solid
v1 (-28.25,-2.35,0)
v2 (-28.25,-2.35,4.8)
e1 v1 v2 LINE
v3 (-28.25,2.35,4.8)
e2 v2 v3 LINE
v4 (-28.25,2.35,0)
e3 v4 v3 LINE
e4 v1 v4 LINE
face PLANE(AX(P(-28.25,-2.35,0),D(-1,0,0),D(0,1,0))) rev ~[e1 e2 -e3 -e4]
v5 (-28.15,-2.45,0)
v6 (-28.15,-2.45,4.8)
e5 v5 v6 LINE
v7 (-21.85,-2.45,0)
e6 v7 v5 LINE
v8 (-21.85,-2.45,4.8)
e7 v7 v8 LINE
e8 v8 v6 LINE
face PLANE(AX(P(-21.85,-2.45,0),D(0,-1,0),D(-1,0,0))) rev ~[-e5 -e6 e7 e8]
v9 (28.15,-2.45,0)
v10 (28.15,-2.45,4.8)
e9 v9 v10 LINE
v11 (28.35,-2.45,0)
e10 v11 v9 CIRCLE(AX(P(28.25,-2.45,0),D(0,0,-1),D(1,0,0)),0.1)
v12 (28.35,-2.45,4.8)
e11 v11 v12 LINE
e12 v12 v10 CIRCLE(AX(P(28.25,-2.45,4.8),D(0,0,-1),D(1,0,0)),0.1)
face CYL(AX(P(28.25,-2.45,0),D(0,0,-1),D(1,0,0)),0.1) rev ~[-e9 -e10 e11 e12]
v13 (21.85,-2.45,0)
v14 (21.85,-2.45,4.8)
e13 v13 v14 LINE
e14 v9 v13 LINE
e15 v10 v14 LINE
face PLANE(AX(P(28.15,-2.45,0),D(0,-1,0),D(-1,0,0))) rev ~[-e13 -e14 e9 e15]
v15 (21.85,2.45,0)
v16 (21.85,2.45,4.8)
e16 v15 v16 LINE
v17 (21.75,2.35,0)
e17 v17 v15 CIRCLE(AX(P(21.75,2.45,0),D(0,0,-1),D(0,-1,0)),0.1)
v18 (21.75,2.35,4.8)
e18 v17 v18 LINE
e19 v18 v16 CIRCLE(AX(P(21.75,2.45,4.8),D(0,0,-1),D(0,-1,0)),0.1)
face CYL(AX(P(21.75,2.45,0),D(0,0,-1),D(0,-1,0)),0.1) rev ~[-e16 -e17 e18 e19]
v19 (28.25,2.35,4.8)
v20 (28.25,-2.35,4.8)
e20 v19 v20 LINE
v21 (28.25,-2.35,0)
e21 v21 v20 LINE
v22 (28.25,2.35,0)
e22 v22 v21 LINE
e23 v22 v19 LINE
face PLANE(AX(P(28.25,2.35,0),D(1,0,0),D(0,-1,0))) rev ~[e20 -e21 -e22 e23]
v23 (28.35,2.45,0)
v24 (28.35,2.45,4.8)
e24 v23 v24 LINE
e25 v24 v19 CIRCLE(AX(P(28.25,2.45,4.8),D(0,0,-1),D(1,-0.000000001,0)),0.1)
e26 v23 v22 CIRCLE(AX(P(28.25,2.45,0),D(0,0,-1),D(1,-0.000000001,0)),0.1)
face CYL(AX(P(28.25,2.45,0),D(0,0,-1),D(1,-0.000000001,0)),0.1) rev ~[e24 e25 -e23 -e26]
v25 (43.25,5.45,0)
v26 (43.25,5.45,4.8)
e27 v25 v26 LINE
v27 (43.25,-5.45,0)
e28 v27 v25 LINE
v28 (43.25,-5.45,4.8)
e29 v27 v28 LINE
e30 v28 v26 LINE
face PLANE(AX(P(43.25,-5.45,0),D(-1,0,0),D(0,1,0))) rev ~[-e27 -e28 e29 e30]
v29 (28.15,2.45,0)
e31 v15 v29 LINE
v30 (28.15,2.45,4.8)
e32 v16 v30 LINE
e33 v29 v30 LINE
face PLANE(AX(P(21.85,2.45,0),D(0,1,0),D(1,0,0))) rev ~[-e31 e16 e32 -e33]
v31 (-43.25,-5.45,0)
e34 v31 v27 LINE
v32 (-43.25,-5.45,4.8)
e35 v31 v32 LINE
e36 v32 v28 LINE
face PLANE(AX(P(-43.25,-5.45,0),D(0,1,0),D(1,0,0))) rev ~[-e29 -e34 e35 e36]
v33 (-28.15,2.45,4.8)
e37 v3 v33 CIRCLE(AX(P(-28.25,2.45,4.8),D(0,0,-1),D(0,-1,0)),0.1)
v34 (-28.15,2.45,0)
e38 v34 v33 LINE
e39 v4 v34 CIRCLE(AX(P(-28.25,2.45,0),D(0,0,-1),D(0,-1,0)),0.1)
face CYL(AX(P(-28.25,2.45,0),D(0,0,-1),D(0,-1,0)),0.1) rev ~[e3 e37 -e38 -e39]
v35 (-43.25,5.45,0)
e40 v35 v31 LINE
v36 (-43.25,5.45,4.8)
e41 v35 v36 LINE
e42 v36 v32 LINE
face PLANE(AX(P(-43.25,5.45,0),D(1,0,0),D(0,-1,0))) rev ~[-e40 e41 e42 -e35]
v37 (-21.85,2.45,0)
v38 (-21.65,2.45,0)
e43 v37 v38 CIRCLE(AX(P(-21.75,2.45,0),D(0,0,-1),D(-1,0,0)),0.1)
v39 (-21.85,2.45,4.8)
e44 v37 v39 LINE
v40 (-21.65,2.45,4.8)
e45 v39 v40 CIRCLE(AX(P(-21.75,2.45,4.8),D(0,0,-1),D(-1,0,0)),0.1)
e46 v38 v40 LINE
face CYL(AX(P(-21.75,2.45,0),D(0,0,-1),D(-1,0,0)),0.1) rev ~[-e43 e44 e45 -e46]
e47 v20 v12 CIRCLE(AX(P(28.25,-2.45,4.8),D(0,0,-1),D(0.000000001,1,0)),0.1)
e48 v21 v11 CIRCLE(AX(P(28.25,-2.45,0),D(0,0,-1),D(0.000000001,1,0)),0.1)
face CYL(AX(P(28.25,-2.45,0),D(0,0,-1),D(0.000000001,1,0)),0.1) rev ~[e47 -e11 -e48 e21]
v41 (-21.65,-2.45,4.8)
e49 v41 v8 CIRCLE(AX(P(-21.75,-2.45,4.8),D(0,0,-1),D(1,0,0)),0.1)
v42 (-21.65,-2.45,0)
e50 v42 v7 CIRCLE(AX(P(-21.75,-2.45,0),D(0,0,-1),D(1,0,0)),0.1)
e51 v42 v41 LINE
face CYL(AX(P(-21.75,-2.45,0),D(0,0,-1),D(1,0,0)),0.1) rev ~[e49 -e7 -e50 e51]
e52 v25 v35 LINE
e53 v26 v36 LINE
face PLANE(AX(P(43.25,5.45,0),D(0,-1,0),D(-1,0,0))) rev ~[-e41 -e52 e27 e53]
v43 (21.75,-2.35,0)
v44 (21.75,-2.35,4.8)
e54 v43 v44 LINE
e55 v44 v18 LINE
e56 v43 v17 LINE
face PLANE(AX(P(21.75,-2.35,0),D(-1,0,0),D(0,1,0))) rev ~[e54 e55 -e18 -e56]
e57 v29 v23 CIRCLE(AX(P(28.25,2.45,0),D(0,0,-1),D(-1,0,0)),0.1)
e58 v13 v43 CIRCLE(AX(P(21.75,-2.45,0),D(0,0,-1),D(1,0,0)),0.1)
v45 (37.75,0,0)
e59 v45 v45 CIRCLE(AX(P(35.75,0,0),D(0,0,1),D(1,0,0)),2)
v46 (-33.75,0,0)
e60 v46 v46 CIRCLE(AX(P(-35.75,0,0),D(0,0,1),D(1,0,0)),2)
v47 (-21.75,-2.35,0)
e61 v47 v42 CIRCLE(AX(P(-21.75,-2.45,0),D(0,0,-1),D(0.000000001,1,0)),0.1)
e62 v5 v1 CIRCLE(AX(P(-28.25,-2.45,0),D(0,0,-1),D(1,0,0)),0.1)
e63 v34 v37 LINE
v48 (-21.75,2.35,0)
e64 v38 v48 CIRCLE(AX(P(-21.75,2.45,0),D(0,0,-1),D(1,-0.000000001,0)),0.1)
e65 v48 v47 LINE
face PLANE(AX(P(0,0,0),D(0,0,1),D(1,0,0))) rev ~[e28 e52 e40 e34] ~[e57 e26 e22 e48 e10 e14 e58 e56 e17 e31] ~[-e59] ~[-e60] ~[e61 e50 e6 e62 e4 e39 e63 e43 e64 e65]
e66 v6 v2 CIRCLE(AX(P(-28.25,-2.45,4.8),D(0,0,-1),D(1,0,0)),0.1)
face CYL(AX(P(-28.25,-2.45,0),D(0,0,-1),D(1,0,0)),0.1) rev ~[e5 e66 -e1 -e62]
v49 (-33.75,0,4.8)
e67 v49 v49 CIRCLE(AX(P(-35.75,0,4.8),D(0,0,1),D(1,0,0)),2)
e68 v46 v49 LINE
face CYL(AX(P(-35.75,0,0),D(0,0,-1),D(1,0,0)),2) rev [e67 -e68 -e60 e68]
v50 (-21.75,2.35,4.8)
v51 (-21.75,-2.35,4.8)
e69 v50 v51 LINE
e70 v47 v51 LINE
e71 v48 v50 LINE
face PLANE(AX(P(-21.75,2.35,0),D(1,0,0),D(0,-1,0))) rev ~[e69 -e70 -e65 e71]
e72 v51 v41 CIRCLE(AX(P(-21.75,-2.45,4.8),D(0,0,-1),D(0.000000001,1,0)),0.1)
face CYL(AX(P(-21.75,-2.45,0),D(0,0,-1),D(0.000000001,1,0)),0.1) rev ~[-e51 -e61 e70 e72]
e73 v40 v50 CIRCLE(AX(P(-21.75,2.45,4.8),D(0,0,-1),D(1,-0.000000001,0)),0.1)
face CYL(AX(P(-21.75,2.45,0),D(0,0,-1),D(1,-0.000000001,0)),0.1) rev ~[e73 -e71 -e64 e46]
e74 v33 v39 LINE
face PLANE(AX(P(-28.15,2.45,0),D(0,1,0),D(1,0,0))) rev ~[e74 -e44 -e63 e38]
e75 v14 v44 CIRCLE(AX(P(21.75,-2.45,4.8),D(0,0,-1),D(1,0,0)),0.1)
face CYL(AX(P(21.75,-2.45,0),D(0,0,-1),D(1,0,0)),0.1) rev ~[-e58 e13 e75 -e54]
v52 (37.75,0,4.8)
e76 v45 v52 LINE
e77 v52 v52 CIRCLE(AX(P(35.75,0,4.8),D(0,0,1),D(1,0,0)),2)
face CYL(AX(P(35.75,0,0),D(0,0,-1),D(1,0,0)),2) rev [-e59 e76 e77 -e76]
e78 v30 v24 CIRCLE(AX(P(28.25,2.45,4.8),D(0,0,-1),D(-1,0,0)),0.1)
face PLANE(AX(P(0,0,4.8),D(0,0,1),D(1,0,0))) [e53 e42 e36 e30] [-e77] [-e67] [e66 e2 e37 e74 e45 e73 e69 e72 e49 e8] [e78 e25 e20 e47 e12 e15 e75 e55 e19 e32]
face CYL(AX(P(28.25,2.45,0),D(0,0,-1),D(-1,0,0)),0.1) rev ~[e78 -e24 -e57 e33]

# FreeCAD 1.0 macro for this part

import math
import FreeCAD as App
import Part
import Sketcher

V = App.Vector

doc = App.newDocument("Part")
body = doc.addObject("PartDesign::Body", "Body")

# Sketch on XY plane
sketch1 = body.newObject("Sketcher::SketchObject", "Sketch")
sketch1.AttachmentSupport = (doc.getObject("XY_Plane"), [""])
sketch1.MapMode = "FlatFace"
sketch1.addGeometry(Part.LineSegment(V(-43.25, 5.45, 0), V(-43.25, -5.45, 0)), False)
sketch1.addGeometry(Part.LineSegment(V(-43.25, -5.45, 0), V(43.25, -5.45, 0)), False)
sketch1.addGeometry(Part.LineSegment(V(43.25, -5.45, 0), V(43.25, 5.45, 0)), False)
sketch1.addGeometry(Part.LineSegment(V(43.25, 5.45, 0), V(-43.25, 5.45, 0)), False)
sketch1.addGeometry(Part.Circle(V(-35.75, 0, 0), V(0, 0, 1), 2), False)
sketch1.addGeometry(Part.ArcOfCircle(Part.Circle(V(-21.75, 2.45, 0), V(0, 0, 1), 0.1), math.radians(-90), math.radians(0)), False)
sketch1.addGeometry(Part.LineSegment(V(-21.75, 2.35, 0), V(-21.75, -2.35, 0)), False)
sketch1.addGeometry(Part.ArcOfCircle(Part.Circle(V(-21.75, -2.45, 0), V(0, 0, 1), 0.1), math.radians(0), math.radians(90)), False)
sketch1.addGeometry(Part.ArcOfCircle(Part.Circle(V(-21.75, -2.45, 0), V(0, 0, 1), 0.1), math.radians(180), math.radians(360)), False)
sketch1.addGeometry(Part.LineSegment(V(-21.85, -2.45, 0), V(-28.15, -2.45, 0)), False)
sketch1.addGeometry(Part.ArcOfCircle(Part.Circle(V(-28.25, -2.45, 0), V(0, 0, 1), 0.1), math.radians(90), math.radians(360)), False)
sketch1.addGeometry(Part.LineSegment(V(-28.25, -2.35, 0), V(-28.25, 2.35, 0)), False)
sketch1.addGeometry(Part.ArcOfCircle(Part.Circle(V(-28.25, 2.45, 0), V(0, 0, 1), 0.1), math.radians(0), math.radians(270)), False)
sketch1.addGeometry(Part.LineSegment(V(-28.15, 2.45, 0), V(-21.85, 2.45, 0)), False)
sketch1.addGeometry(Part.ArcOfCircle(Part.Circle(V(-21.75, 2.45, 0), V(0, 0, 1), 0.1), math.radians(0), math.radians(180)), False)
sketch1.addGeometry(Part.ArcOfCircle(Part.Circle(V(28.25, -2.45, 0), V(0, 0, 1), 0.1), math.radians(180), math.radians(360)), False)
sketch1.addGeometry(Part.LineSegment(V(28.15, -2.45, 0), V(21.85, -2.45, 0)), False)
sketch1.addGeometry(Part.ArcOfCircle(Part.Circle(V(21.75, -2.45, 0), V(0, 0, 1), 0.1), math.radians(90), math.radians(360)), False)
sketch1.addGeometry(Part.LineSegment(V(21.75, -2.35, 0), V(21.75, 2.35, 0)), False)
sketch1.addGeometry(Part.ArcOfCircle(Part.Circle(V(21.75, 2.45, 0), V(0, 0, 1), 0.1), math.radians(0), math.radians(270)), False)
sketch1.addGeometry(Part.LineSegment(V(21.85, 2.45, 0), V(28.15, 2.45, 0)), False)
sketch1.addGeometry(Part.ArcOfCircle(Part.Circle(V(28.25, 2.45, 0), V(0, 0, 1), 0.1), math.radians(0), math.radians(180)), False)
sketch1.addGeometry(Part.ArcOfCircle(Part.Circle(V(28.25, 2.45, 0), V(0, 0, 1), 0.1), math.radians(-90), math.radians(0)), False)
sketch1.addGeometry(Part.LineSegment(V(28.25, 2.35, 0), V(28.25, -2.35, 0)), False)
sketch1.addGeometry(Part.ArcOfCircle(Part.Circle(V(28.25, -2.45, 0), V(0, 0, 1), 0.1), math.radians(0), math.radians(90)), False)
sketch1.addGeometry(Part.Circle(V(35.75, 0, 0), V(0, 0, 1), 2), False)
sketch1.addConstraint(Sketcher.Constraint("Coincident", 0, 2, 1, 1))
sketch1.addConstraint(Sketcher.Constraint("Coincident", 1, 2, 2, 1))
sketch1.addConstraint(Sketcher.Constraint("Coincident", 2, 2, 3, 1))
sketch1.addConstraint(Sketcher.Constraint("Coincident", 3, 2, 0, 1))
sketch1.addConstraint(Sketcher.Constraint("Coincident", 5, 1, 6, 1))
sketch1.addConstraint(Sketcher.Constraint("Coincident", 6, 2, 7, 2))
sketch1.addConstraint(Sketcher.Constraint("Tangent", 7, 1, 8, 2))
sketch1.addConstraint(Sketcher.Constraint("Coincident", 8, 1, 9, 1))
sketch1.addConstraint(Sketcher.Constraint("Coincident", 9, 2, 10, 2))
sketch1.addConstraint(Sketcher.Constraint("Coincident", 10, 1, 11, 1))
sketch1.addConstraint(Sketcher.Constraint("Coincident", 11, 2, 12, 2))
sketch1.addConstraint(Sketcher.Constraint("Coincident", 12, 1, 13, 1))
sketch1.addConstraint(Sketcher.Constraint("Coincident", 13, 2, 14, 2))
sketch1.addConstraint(Sketcher.Constraint("Tangent", 14, 1, 5, 2))
sketch1.addConstraint(Sketcher.Constraint("Coincident", 15, 1, 16, 1))
sketch1.addConstraint(Sketcher.Constraint("Coincident", 16, 2, 17, 2))
sketch1.addConstraint(Sketcher.Constraint("Coincident", 17, 1, 18, 1))
sketch1.addConstraint(Sketcher.Constraint("Coincident", 18, 2, 19, 2))
sketch1.addConstraint(Sketcher.Constraint("Coincident", 19, 1, 20, 1))
sketch1.addConstraint(Sketcher.Constraint("Coincident", 20, 2, 21, 2))
sketch1.addConstraint(Sketcher.Constraint("Tangent", 21, 1, 22, 2))
sketch1.addConstraint(Sketcher.Constraint("Coincident", 22, 1, 23, 1))
sketch1.addConstraint(Sketcher.Constraint("Coincident", 23, 2, 24, 2))
sketch1.addConstraint(Sketcher.Constraint("Tangent", 24, 1, 15, 2))
sketch1.addConstraint(Sketcher.Constraint("Vertical", 0))
sketch1.addConstraint(Sketcher.Constraint("Horizontal", 1))
sketch1.addConstraint(Sketcher.Constraint("Vertical", 2))
sketch1.addConstraint(Sketcher.Constraint("Horizontal", 3))
sketch1.addConstraint(Sketcher.Constraint("Vertical", 6))
sketch1.addConstraint(Sketcher.Constraint("Horizontal", 9))
sketch1.addConstraint(Sketcher.Constraint("Vertical", 11))
sketch1.addConstraint(Sketcher.Constraint("Horizontal", 13))
sketch1.addConstraint(Sketcher.Constraint("Horizontal", 16))
sketch1.addConstraint(Sketcher.Constraint("Vertical", 18))
sketch1.addConstraint(Sketcher.Constraint("Horizontal", 20))
sketch1.addConstraint(Sketcher.Constraint("Vertical", 23))
sketch1.addConstraint(Sketcher.Constraint("Equal", 5, 7))
sketch1.addConstraint(Sketcher.Constraint("Equal", 7, 8))
sketch1.addConstraint(Sketcher.Constraint("Equal", 8, 10))
sketch1.addConstraint(Sketcher.Constraint("Equal", 10, 12))
sketch1.addConstraint(Sketcher.Constraint("Equal", 12, 14))
sketch1.addConstraint(Sketcher.Constraint("Equal", 14, 15))
sketch1.addConstraint(Sketcher.Constraint("Equal", 15, 17))
sketch1.addConstraint(Sketcher.Constraint("Equal", 17, 19))
sketch1.addConstraint(Sketcher.Constraint("Equal", 19, 21))
sketch1.addConstraint(Sketcher.Constraint("Equal", 21, 22))
sketch1.addConstraint(Sketcher.Constraint("Equal", 22, 24))
sketch1.addConstraint(Sketcher.Constraint("Equal", 4, 25))
sketch1.addConstraint(Sketcher.Constraint("Symmetric", 12, 3, 15, 3, -1, 1))
sketch1.addConstraint(Sketcher.Constraint("Symmetric", 5, 3, 17, 3, -1, 1))
sketch1.addConstraint(Sketcher.Constraint("Symmetric", 7, 3, 19, 3, -1, 1))
sketch1.addConstraint(Sketcher.Constraint("Symmetric", 10, 3, 21, 3, -1, 1))
sketch1.addConstraint(Sketcher.Constraint("Symmetric", 4, 3, 25, 3, -1, 1))
sketch1.addConstraint(Sketcher.Constraint("Symmetric", 0, 2, 2, 2, -1, 1))
sketch1.addConstraint(Sketcher.Constraint("Symmetric", 10, 3, 15, 3, -2))
sketch1.addConstraint(Sketcher.Constraint("Symmetric", 7, 3, 17, 3, -2))
sketch1.addConstraint(Sketcher.Constraint("PointOnObject", 4, 3, -1))
sketch1.addConstraint(Sketcher.Constraint("Horizontal", 8, 3, 10, 3))
sketch1.addConstraint(Sketcher.Constraint("Horizontal", 24, 3, 7, 1))
sketch1.addConstraint(Sketcher.Constraint("Horizontal", 7, 1, 8, 1))
sketch1.addConstraint(Sketcher.Constraint("Horizontal", 22, 3, 12, 1))
sketch1.addConstraint(Sketcher.Constraint("Horizontal", 13, 2, 14, 1))
sketch1.addConstraint(Sketcher.Constraint("Horizontal", 9, 2, 15, 1))
sketch1.addConstraint(Sketcher.Constraint("Horizontal", 14, 1, 19, 1))
sketch1.addConstraint(Sketcher.Constraint("Horizontal", 20, 2, 21, 1))
sketch1.addConstraint(Sketcher.Constraint("Horizontal", 16, 2, 24, 1))
sketch1.addConstraint(Sketcher.Constraint("Vertical", 14, 3, 5, 1))
sketch1.addConstraint(Sketcher.Constraint("Vertical", 12, 3, 10, 1))
sketch1.addConstraint(Sketcher.Constraint("Vertical", 19, 3, 17, 1))
sketch1.addConstraint(Sketcher.Constraint("Vertical", 24, 3, 22, 1))
sketch1.addConstraint(Sketcher.Constraint("Diameter", 4, 4.0))
sketch1.addConstraint(Sketcher.Constraint("Radius", 5, 0.1))
sketch1.addConstraint(Sketcher.Constraint("DistanceX", 1, 1, 1, 2, 86.5))
sketch1.addConstraint(Sketcher.Constraint("DistanceX", 9, 2, 9, 1, 6.3))
sketch1.addConstraint(Sketcher.Constraint("DistanceY", 0, 2, 0, 1, 10.9))
sketch1.addConstraint(Sketcher.Constraint("DistanceY", 6, 2, 6, 1, 4.7))
sketch1.addConstraint(Sketcher.Constraint("DistanceX", 4, 3, 5, 3, 14.0))
sketch1.addConstraint(Sketcher.Constraint("DistanceX", 7, 3, 15, 3, 50.0))
pad1 = body.newObject("PartDesign::Pad", "Pad")
pad1.Profile = sketch1
pad1.Length = 4.8

doc.recompute()
